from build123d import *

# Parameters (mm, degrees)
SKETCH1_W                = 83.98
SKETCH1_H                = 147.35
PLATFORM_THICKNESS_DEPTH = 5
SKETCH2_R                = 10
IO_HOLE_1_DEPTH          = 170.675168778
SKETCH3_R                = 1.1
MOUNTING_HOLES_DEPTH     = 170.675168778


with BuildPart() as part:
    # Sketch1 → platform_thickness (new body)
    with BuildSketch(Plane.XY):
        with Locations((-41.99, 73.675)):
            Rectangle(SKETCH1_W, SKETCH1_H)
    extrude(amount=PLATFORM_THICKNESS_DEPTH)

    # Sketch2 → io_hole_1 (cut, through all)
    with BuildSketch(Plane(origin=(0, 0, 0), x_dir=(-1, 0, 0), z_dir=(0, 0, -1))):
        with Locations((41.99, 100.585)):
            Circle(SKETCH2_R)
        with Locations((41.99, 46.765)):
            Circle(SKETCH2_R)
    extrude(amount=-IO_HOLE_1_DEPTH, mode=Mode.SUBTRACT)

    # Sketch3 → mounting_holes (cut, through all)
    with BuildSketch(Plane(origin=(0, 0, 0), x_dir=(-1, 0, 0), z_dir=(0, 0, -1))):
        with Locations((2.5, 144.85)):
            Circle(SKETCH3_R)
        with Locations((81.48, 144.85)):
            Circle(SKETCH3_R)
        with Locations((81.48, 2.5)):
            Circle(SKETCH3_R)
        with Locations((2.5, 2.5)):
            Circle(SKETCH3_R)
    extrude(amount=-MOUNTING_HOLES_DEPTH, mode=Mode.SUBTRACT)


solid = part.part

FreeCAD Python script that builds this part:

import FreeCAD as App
import Part
import Sketcher
Q = App.Units.Quantity

doc = App.newDocument("Part")
body = doc.addObject("PartDesign::Body", "Body")

sketch1 = doc.addObject("Sketcher::SketchObject", "Sketch")
body.addObject(sketch1)
sketch1.AttachmentSupport = (doc.XY_Plane, [""])
sketch1.MapMode = "FlatFace"
sketch1.addGeometry([
    Part.LineSegment(App.Vector(-83.98, 147.35, 0), App.Vector(-83.98, 0, 0)),
    Part.LineSegment(App.Vector(-83.98, 0, 0), App.Vector(0, 0, 0)),
    Part.LineSegment(App.Vector(0, 0, 0), App.Vector(0, 147.35, 0)),
    Part.LineSegment(App.Vector(0, 147.35, 0), App.Vector(-83.98, 147.35, 0)),
], False)
sketch1.addConstraint([
    Sketcher.Constraint("Coincident", 0, 2, 1, 1),
    Sketcher.Constraint("Coincident", 1, 2, 2, 1),
    Sketcher.Constraint("Coincident", 2, 2, 3, 1),
    Sketcher.Constraint("Coincident", 3, 2, 0, 1),
    Sketcher.Constraint("Vertical", 0),
    Sketcher.Constraint("Horizontal", 1),
    Sketcher.Constraint("Vertical", 2),
    Sketcher.Constraint("Horizontal", 3),
    Sketcher.Constraint("Coincident", 1, 2, -1, 1),
    Sketcher.Constraint("DistanceX", 1, 1, 1, 2, Q("83.98 mm")),
    Sketcher.Constraint("DistanceY", 0, 2, 0, 1, Q("147.35 mm")),
])
pad1 = doc.addObject("PartDesign::Pad", "Pad")
body.addObject(pad1)
pad1.Profile = sketch1
pad1.Length = 5

sketch2 = doc.addObject("Sketcher::SketchObject", "Sketch001")
body.addObject(sketch2)
sketch2.AttachmentSupport = (doc.XY_Plane, [""])
sketch2.MapMode = "FlatFace"
sketch2.addGeometry([
    Part.Circle(App.Vector(-41.99, 100.585, 0), App.Vector(0, 0, 1), 10),
    Part.Circle(App.Vector(-41.99, 46.765, 0), App.Vector(0, 0, 1), 10),
], False)
sketch2.addConstraint([
    Sketcher.Constraint("Equal", 0, 1),
    Sketcher.Constraint("Vertical", 0, 3, 1, 3),
    Sketcher.Constraint("Diameter", 0, Q("20 mm")),
    Sketcher.Constraint("DistanceX", 0, 3, -1, 1, Q("41.99 mm")),
    Sketcher.Constraint("DistanceY", 1, 3, 0, 3, Q("53.82 mm")),
    Sketcher.Constraint("DistanceY", -1, 1, 0, 3, Q("100.585 mm")),
])
pocket1 = doc.addObject("PartDesign::Pocket", "Pocket")
body.addObject(pocket1)
pocket1.Profile = sketch2
pocket1.Type = "ThroughAll"
pocket1.Reversed = True

sketch3 = doc.addObject("Sketcher::SketchObject", "Sketch002")
body.addObject(sketch3)
sketch3.AttachmentSupport = (doc.XY_Plane, [""])
sketch3.MapMode = "FlatFace"
sketch3.addGeometry([
    Part.Circle(App.Vector(-2.5, 144.85, 0), App.Vector(0, 0, 1), 1.1),
    Part.Circle(App.Vector(-81.48, 144.85, 0), App.Vector(0, 0, 1), 1.1),
    Part.Circle(App.Vector(-81.48, 2.5, 0), App.Vector(0, 0, 1), 1.1),
    Part.Circle(App.Vector(-2.5, 2.5, 0), App.Vector(0, 0, 1), 1.1),
], False)
sketch3.addConstraint([
    Sketcher.Constraint("Equal", 0, 1),
    Sketcher.Constraint("Equal", 1, 2),
    Sketcher.Constraint("Equal", 2, 3),
    Sketcher.Constraint("Horizontal", 0, 3, 1, 3),
    Sketcher.Constraint("Horizontal", 2, 3, 3, 3),
    Sketcher.Constraint("Vertical", 1, 3, 2, 3),
    Sketcher.Constraint("Vertical", 0, 3, 3, 3),
    Sketcher.Constraint("Diameter", 0, Q("2.2 mm")),
    Sketcher.Constraint("DistanceX", 0, 3, -1, 1, Q("2.5 mm")),
    Sketcher.Constraint("DistanceY", -1, 1, 2, 3, Q("2.5 mm")),
    Sketcher.Constraint("DistanceY", -1, 1, 0, 3, Q("144.85 mm")),
    Sketcher.Constraint("DistanceX", 1, 3, -1, 1, Q("81.48 mm")),
])
pocket2 = doc.addObject("PartDesign::Pocket", "Pocket001")
body.addObject(pocket2)
pocket2.Profile = sketch3
pocket2.Type = "ThroughAll"
pocket2.Reversed = True

doc.recompute()
